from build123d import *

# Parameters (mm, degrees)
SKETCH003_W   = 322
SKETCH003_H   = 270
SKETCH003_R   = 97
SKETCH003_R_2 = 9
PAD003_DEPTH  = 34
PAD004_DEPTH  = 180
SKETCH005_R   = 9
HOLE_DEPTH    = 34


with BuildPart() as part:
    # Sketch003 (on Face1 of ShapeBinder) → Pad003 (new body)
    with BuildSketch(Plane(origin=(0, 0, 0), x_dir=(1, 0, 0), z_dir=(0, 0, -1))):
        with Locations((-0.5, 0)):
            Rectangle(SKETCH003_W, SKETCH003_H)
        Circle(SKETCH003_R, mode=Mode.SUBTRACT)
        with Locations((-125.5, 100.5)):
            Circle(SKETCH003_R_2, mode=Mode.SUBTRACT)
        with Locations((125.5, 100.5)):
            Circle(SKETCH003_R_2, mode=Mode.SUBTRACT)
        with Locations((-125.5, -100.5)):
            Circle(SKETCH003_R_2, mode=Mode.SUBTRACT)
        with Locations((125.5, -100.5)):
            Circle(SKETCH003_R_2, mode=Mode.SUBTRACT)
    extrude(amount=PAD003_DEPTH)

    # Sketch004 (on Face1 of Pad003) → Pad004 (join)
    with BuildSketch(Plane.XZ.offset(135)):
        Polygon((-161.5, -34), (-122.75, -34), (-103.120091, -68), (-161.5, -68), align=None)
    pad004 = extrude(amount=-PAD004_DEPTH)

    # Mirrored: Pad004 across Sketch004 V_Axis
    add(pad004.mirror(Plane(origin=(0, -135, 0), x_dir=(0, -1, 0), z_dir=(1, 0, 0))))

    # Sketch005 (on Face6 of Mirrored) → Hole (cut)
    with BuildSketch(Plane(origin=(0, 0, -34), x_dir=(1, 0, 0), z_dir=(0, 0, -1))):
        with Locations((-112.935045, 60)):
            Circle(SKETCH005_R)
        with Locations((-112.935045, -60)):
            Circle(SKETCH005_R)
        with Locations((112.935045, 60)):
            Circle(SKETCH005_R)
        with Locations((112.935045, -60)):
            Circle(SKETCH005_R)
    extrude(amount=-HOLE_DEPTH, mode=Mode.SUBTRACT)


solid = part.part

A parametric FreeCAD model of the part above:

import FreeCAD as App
import Part
import Sketcher

V = App.Vector
Q = App.Units.Quantity

doc = App.newDocument("Part")
params = doc.addObject("Spreadsheet::Sheet", "Params")
for row, (alias, value) in enumerate([
    ("sketch1_diameter", "18 mm"),
    ("sketch1_diameter2", "194 mm"),
    ("sketch1_width", "322 mm"),
    ("sketch1_height", "270 mm"),
    ("pad1_length", "34 mm"),
    ("sketch2_height", "34 mm"),
    ("sketch2_width", "38.75 mm"),
    ("pad2_length", "180 mm"),
    ("sketch3_diameter", "18 mm"),
    ("pocket1_length", "34 mm"),
], start=1):
    params.set(f"A{row}", alias)
    params.set(f"B{row}", "=" + value)
    params.setAlias(f"B{row}", alias)

body = doc.addObject("PartDesign::Body", "Body")

sketch1 = body.newObject("Sketcher::SketchObject", "Sketch")
sketch1.AttachmentSupport = (doc.getObject("XY_Plane"), [""])
sketch1.MapMode = "FlatFace"
sketch1.addGeometry([
    Part.LineSegment(V(-162, -135, 0), V(-162, 135, 0)),
    Part.LineSegment(V(-162, 135, 0), V(160, 135, 0)),
    Part.LineSegment(V(160, 135, 0), V(160, -135, 0)),
    Part.LineSegment(V(160, -135, 0), V(-162, -135, 0)),
    Part.Circle(V(-126, 100, 0), V(0, 0, 1), 9),
    Part.Circle(V(126, 100, 0), V(0, 0, 1), 9),
    Part.Circle(V(-126, -100, 0), V(0, 0, 1), 9),
    Part.Circle(V(0, 0, 0), V(0, 0, 1), 97),
    Part.Circle(V(126, -100, 0), V(0, 0, 1), 9),
], False)
sketch1.addConstraint([
    Sketcher.Constraint("Coincident", 0, 2, 1, 1),
    Sketcher.Constraint("Coincident", 1, 2, 2, 1),
    Sketcher.Constraint("Coincident", 2, 2, 3, 1),
    Sketcher.Constraint("Coincident", 3, 2, 0, 1),
    Sketcher.Constraint("Vertical", 0),
    Sketcher.Constraint("Horizontal", 1),
    Sketcher.Constraint("Vertical", 2),
    Sketcher.Constraint("Horizontal", 3),
    Sketcher.Constraint("Coincident", 7, 3, -1, 1),
    Sketcher.Constraint("Equal", 4, 5),
    Sketcher.Constraint("Equal", 5, 6),
    Sketcher.Constraint("Equal", 6, 8),
    Sketcher.Constraint("Symmetric", 5, 3, 6, 3, -1, 1),
    Sketcher.Constraint("Symmetric", 4, 3, 8, 3, -1, 1),
    Sketcher.Constraint("Symmetric", 4, 3, 5, 3, -2),
    Sketcher.Constraint("Diameter", 4, Q("18 mm")),
    Sketcher.Constraint("Diameter", 7, Q("194 mm")),
    Sketcher.Constraint("DistanceX", 1, 1, 1, 2, Q("322 mm")),
    Sketcher.Constraint("DistanceY", 0, 1, 0, 2, Q("270 mm")),
    Sketcher.Constraint("DistanceY", -1, 1, 0, 2, Q("135 mm")),
    Sketcher.Constraint("DistanceX", 4, 3, 5, 3, Q("251 mm")),
    Sketcher.Constraint("DistanceY", 6, 3, 4, 3, Q("201 mm")),
    Sketcher.Constraint("DistanceX", 0, 2, 4, 3, Q("36 mm")),
])
sketch1.setExpression("Constraints[15]", "Params.sketch1_diameter")
sketch1.setExpression("Constraints[16]", "Params.sketch1_diameter2")
sketch1.setExpression("Constraints[17]", "Params.sketch1_width")
sketch1.setExpression("Constraints[18]", "Params.sketch1_height")
pad1 = body.newObject("PartDesign::Pad", "Pad")
pad1.Profile = sketch1
pad1.setExpression("Length", "Params.pad1_length")
pad1.Reversed = True

sketch2 = body.newObject("Sketcher::SketchObject", "Sketch001")
sketch2.AttachmentSupport = (doc.getObject("XZ_Plane"), [""])
sketch2.MapMode = "FlatFace"
sketch2.AttachmentOffset = App.Placement(V(0, 0, 135), App.Rotation())
sketch2.addGeometry([
    Part.LineSegment(V(-123, -34, 0), V(-162, -34, 0)),
    Part.LineSegment(V(-162, -34, 0), V(-162, -68, 0)),
    Part.LineSegment(V(-162, -68, 0), V(-103, -68, 0)),
    Part.LineSegment(V(-103, -68, 0), V(-123, -34, 0)),
], False)
sketch2.addConstraint([
    Sketcher.Constraint("Coincident", 0, 2, 1, 1),
    Sketcher.Constraint("Coincident", 1, 2, 2, 1),
    Sketcher.Constraint("Coincident", 2, 2, 3, 1),
    Sketcher.Constraint("Coincident", 3, 2, 0, 1),
    Sketcher.Constraint("Horizontal", 0),
    Sketcher.Constraint("Vertical", 1),
    Sketcher.Constraint("Horizontal", 2),
    Sketcher.Constraint("DistanceY", 1, 2, 1, 1, Q("34 mm")),
    Sketcher.Constraint("Angle", 3, Q("120 deg")),
    Sketcher.Constraint("DistanceY", 0, 2, -1, 1, Q("34 mm")),
    Sketcher.Constraint("DistanceX", 0, 2, 0, 1, Q("38.75 mm")),
    Sketcher.Constraint("DistanceX", 0, 2, -1, 1, Q("161.5 mm")),
])
sketch2.setExpression("Constraints[7]", "Params.sketch2_height")
sketch2.setExpression("Constraints[10]", "Params.sketch2_width")
pad2 = body.newObject("PartDesign::Pad", "Pad001")
pad2.Profile = sketch2
pad2.setExpression("Length", "Params.pad2_length")
pad2.Reversed = True
doc.recompute()

mirrored = body.newObject("PartDesign::Mirrored", "Mirrored")
mirrored.Originals = [pad2]
mirrored.MirrorPlane = (doc.getObject("YZ_Plane"), [""])
body.Tip = mirrored

sketch3 = body.newObject("Sketcher::SketchObject", "Sketch002")
sketch3.AttachmentSupport = (doc.getObject("XY_Plane"), [""])
sketch3.MapMode = "FlatFace"
sketch3.AttachmentOffset = App.Placement(V(0, 0, -34), App.Rotation())
sketch3.addGeometry([
    Part.Circle(V(-113, -60, 0), V(0, 0, 1), 9),
    Part.Circle(V(-113, 60, 0), V(0, 0, 1), 9),
    Part.Circle(V(113, -60, 0), V(0, 0, 1), 9),
    Part.Circle(V(113, 60, 0), V(0, 0, 1), 9),
], False)
sketch3.addConstraint([
    Sketcher.Constraint("Equal", 0, 1),
    Sketcher.Constraint("Equal", 1, 2),
    Sketcher.Constraint("Equal", 2, 3),
    Sketcher.Constraint("Symmetric", 1, 3, 2, 3, -1, 1),
    Sketcher.Constraint("Symmetric", 0, 3, 3, 3, -1, 1),
    Sketcher.Constraint("Symmetric", 0, 3, 2, 3, -2),
    Sketcher.Constraint("Diameter", 0, Q("18 mm")),
    Sketcher.Constraint("DistanceY", 0, 3, -1, 1, Q("60 mm")),
    Sketcher.Constraint("DistanceX", 0, 3, 2, 3, Q("225.87009 mm")),
])
sketch3.setExpression("Constraints[6]", "Params.sketch3_diameter")
pocket1 = body.newObject("PartDesign::Pocket", "Pocket")
pocket1.Profile = sketch3
pocket1.setExpression("Length", "Params.pocket1_length")
pocket1.Reversed = True

doc.recompute()
